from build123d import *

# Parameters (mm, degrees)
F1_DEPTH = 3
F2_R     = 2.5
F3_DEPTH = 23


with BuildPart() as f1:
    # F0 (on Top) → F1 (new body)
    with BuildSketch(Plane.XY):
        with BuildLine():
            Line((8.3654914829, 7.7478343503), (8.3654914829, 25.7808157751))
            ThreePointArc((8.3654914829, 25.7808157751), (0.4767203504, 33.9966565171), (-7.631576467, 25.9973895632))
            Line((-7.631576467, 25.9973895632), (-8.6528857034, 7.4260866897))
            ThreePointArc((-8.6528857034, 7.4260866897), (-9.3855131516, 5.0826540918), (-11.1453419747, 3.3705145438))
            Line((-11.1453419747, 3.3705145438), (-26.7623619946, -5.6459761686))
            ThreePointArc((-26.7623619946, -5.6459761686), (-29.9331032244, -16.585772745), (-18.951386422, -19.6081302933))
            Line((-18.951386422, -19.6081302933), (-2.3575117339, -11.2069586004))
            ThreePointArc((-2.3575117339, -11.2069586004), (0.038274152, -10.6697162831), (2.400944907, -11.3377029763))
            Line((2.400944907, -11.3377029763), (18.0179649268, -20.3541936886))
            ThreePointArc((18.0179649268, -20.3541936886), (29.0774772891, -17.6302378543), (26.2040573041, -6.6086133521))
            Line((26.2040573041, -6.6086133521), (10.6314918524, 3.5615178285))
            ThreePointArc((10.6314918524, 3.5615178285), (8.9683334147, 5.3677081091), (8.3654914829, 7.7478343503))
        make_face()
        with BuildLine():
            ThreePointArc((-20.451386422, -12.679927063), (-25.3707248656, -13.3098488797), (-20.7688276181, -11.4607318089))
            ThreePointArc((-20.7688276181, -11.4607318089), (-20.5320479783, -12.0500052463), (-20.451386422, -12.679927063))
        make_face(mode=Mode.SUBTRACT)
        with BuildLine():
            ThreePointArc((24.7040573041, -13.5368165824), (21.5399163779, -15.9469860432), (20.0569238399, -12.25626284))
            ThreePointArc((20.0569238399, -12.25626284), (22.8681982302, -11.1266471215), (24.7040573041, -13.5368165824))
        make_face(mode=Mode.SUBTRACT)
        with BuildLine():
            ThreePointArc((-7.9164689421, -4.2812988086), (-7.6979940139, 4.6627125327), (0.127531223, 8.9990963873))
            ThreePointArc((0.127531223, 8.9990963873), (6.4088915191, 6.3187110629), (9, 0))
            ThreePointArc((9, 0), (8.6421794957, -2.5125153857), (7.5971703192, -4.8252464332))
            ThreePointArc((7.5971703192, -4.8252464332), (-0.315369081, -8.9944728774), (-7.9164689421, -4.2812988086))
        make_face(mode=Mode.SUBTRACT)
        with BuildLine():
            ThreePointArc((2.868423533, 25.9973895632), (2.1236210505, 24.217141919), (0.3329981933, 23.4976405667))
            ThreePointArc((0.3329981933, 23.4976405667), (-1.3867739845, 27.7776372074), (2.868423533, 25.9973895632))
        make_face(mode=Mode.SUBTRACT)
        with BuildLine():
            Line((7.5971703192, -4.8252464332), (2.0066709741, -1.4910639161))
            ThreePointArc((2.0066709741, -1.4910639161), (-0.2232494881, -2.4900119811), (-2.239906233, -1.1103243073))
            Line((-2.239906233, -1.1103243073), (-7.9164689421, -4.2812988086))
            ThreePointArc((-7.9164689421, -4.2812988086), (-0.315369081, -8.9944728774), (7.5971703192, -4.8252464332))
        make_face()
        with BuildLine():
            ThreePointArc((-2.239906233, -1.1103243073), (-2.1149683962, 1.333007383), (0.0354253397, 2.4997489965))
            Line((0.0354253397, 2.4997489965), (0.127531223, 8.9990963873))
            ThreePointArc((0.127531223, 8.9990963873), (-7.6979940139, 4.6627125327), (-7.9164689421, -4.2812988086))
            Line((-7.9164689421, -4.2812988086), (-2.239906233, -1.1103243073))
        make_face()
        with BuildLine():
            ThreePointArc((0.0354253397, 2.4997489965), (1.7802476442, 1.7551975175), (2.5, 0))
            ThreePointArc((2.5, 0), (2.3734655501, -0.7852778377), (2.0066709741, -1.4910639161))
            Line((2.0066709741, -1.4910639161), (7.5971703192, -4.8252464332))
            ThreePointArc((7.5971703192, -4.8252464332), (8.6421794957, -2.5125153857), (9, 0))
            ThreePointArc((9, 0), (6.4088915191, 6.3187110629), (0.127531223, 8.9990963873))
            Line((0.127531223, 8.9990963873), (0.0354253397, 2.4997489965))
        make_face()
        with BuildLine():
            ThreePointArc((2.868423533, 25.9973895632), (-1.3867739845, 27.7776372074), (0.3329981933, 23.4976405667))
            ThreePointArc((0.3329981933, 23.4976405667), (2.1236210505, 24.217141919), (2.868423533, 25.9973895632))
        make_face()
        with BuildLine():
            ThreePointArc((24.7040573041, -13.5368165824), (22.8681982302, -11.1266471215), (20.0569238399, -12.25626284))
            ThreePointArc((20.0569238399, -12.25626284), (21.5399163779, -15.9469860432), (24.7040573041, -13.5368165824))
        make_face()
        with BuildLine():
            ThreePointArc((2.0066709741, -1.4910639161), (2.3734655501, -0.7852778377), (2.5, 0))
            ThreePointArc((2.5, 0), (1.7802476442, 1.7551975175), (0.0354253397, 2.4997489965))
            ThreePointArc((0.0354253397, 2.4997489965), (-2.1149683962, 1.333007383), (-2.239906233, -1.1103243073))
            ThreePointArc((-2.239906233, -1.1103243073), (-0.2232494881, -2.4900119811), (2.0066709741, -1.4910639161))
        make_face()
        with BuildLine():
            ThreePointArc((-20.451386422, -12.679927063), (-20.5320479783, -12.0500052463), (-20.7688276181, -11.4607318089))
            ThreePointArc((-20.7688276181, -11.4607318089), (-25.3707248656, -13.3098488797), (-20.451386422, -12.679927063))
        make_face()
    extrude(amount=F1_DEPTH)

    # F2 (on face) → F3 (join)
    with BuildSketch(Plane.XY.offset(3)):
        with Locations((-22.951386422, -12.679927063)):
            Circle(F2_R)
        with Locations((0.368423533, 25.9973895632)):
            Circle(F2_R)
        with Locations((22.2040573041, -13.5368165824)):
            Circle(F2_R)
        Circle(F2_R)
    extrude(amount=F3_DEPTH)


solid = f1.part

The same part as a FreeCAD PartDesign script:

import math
import FreeCAD as App
import Part
import Sketcher
from FreeCAD import Vector
Q = App.Units.Quantity

doc = App.newDocument("Part")
body = doc.addObject("PartDesign::Body", "Body")

# Sketch on XY plane
sketch1 = body.newObject("Sketcher::SketchObject", "Sketch")
sketch1.AttachmentSupport = (doc.getObject("XY_Plane"), [""])
sketch1.MapMode = "FlatFace"
sketch1.addGeometry(Part.LineSegment(Vector(8.365491, 7.747834, 0), Vector(8.365491, 25.780816, 0)), False)
sketch1.addGeometry(Part.ArcOfCircle(Part.Circle(Vector(0.368424, 25.99739, 0), Vector(0, 0, 1), 8), math.radians(-1.551285), math.radians(180)), False)
sketch1.addGeometry(Part.LineSegment(Vector(-7.631576, 25.99739, 0), Vector(-8.652886, 7.426087, 0)), False)
sketch1.addGeometry(Part.ArcOfCircle(Part.Circle(Vector(-13.645342, 7.700642, 0), Vector(0, 0, 1), 5), math.radians(-60), math.radians(-3.14775)), False)
sketch1.addGeometry(Part.LineSegment(Vector(-11.145342, 3.370515, 0), Vector(-26.762362, -5.645976, 0)), False)
sketch1.addGeometry(Part.ArcOfCircle(Part.Circle(Vector(-22.951386, -12.679927, 0), Vector(0, 0, 1), 8), math.radians(118.448715), math.radians(300)), False)
sketch1.addGeometry(Part.LineSegment(Vector(-18.951386, -19.60813, 0), Vector(-2.357512, -11.206959, 0)), False)
sketch1.addGeometry(Part.ArcOfCircle(Part.Circle(Vector(-0.099055, -15.66783, 0), Vector(0, 0, 1), 5), math.radians(60), math.radians(116.85225)), False)
sketch1.addGeometry(Part.LineSegment(Vector(2.400945, -11.337703, 0), Vector(18.017965, -20.354194, 0)), False)
sketch1.addGeometry(Part.ArcOfCircle(Part.Circle(Vector(22.204057, -13.536817, 0), Vector(0, 0, 1), 8), math.radians(-121.551285), math.radians(60)), False)
sketch1.addGeometry(Part.LineSegment(Vector(26.204057, -6.608613, 0), Vector(10.631492, 3.561518, 0)), False)
sketch1.addGeometry(Part.ArcOfCircle(Part.Circle(Vector(13.365491, 7.747834, 0), Vector(0, 0, 1), 5), math.radians(180), math.radians(236.85225)), False)
sketch1.addConstraint(Sketcher.Constraint("Coincident", 0, 2, 1, 1))
sketch1.addConstraint(Sketcher.Constraint("Coincident", 1, 2, 2, 1))
sketch1.addConstraint(Sketcher.Constraint("Tangent", 2, 2, 3, 2))
sketch1.addConstraint(Sketcher.Constraint("Tangent", 3, 1, 4, 1))
sketch1.addConstraint(Sketcher.Constraint("Coincident", 4, 2, 5, 1))
sketch1.addConstraint(Sketcher.Constraint("Coincident", 5, 2, 6, 1))
sketch1.addConstraint(Sketcher.Constraint("Tangent", 6, 2, 7, 2))
sketch1.addConstraint(Sketcher.Constraint("Tangent", 7, 1, 8, 1))
sketch1.addConstraint(Sketcher.Constraint("Coincident", 8, 2, 9, 1))
sketch1.addConstraint(Sketcher.Constraint("Coincident", 9, 2, 10, 1))
sketch1.addConstraint(Sketcher.Constraint("Tangent", 10, 2, 11, 2))
sketch1.addConstraint(Sketcher.Constraint("Tangent", 11, 1, 0, 1))
sketch1.addConstraint(Sketcher.Constraint("Vertical", 0))
sketch1.addConstraint(Sketcher.Constraint("Equal", 1, 5))
sketch1.addConstraint(Sketcher.Constraint("Equal", 3, 7))
sketch1.addConstraint(Sketcher.Constraint("Equal", 5, 9))
sketch1.addConstraint(Sketcher.Constraint("Equal", 7, 11))
sketch1.addConstraint(Sketcher.Constraint("Equal", 2, 6))
sketch1.addConstraint(Sketcher.Constraint("Equal", 4, 8))
sketch1.addConstraint(Sketcher.Constraint("Equal", 6, 10))
sketch1.addConstraint(Sketcher.Constraint("Radius", 1, Q("8 mm")))
sketch1.addConstraint(Sketcher.Constraint("Radius", 3, Q("5 mm")))
sketch1.addConstraint(Sketcher.Constraint("Angle", 4, Q("-150 deg")))
sketch1.addConstraint(Sketcher.Constraint("Angle", 8, Q("-30 deg")))
sketch1.addConstraint(Sketcher.Constraint("DistanceX", 5, 3, 5, 2, Q("4 mm")))
sketch1.addConstraint(Sketcher.Constraint("DistanceX", 9, 3, 9, 2, Q("4 mm")))
sketch1.addConstraint(Sketcher.Constraint("DistanceX", 10, 2, 11, 3, Q("2.734 mm")))
sketch1.addConstraint(Sketcher.Constraint("DistanceY", 0, 1, 0, 2, Q("18.032981 mm")))
sketch1.addConstraint(Sketcher.Constraint("DistanceX", 3, 3, 9, 3, Q("35.849399 mm")))
sketch1.addConstraint(Sketcher.Constraint("DistanceY", 5, 2, 7, 3, Q("3.9403 mm")))
sketch1.addConstraint(Sketcher.Constraint("Distance", 4, Q("18.032981 mm")))
sketch1.addConstraint(Sketcher.Constraint("DistanceY", -1, 1, 1, 3, Q("25.99739 mm")))
sketch1.addConstraint(Sketcher.Constraint("DistanceX", 3, 3, -1, 1, Q("13.645342 mm")))
sketch1.addConstraint(Sketcher.Constraint("DistanceY", -1, 1, 3, 3, Q("7.700642 mm")))
sketch1.addConstraint(Sketcher.Constraint("DistanceY", 7, 3, -1, 1, Q("15.66783 mm")))
sketch1.addConstraint(Sketcher.Constraint("DistanceX", -1, 1, 11, 3, Q("13.365491 mm")))
pad1 = body.newObject("PartDesign::Pad", "Pad")
pad1.Profile = sketch1
pad1.Length = 3

# Sketch on XY plane
sketch2 = body.newObject("Sketcher::SketchObject", "Sketch001")
sketch2.AttachmentSupport = (doc.getObject("XY_Plane"), [""])
sketch2.MapMode = "FlatFace"
sketch2.AttachmentOffset = App.Placement(Vector(0, 0, 3), App.Rotation())
sketch2.addGeometry(Part.Circle(Vector(-22.951386, -12.679927, 0), Vector(0, 0, 1), 2.5), False)
sketch2.addGeometry(Part.Circle(Vector(0.368424, 25.99739, 0), Vector(0, 0, 1), 2.5), False)
sketch2.addGeometry(Part.Circle(Vector(22.204057, -13.536817, 0), Vector(0, 0, 1), 2.5), False)
sketch2.addGeometry(Part.Circle(Vector(0, 0, 0), Vector(0, 0, 1), 2.5), False)
sketch2.addConstraint(Sketcher.Constraint("Coincident", 3, 3, -1, 1))
sketch2.addConstraint(Sketcher.Constraint("Equal", 0, 1))
sketch2.addConstraint(Sketcher.Constraint("Equal", 1, 2))
sketch2.addConstraint(Sketcher.Constraint("Equal", 2, 3))
sketch2.addConstraint(Sketcher.Constraint("Diameter", 0, Q("5 mm")))
sketch2.addConstraint(Sketcher.Constraint("DistanceY", -1, 1, 1, 3, Q("25.99739 mm")))
sketch2.addConstraint(Sketcher.Constraint("DistanceX", 0, 3, 1, 3, Q("23.31981 mm")))
sketch2.addConstraint(Sketcher.Constraint("DistanceY", 2, 3, 0, 3, Q("0.85689 mm")))
sketch2.addConstraint(Sketcher.Constraint("DistanceX", 0, 3, -1, 1, Q("22.951386 mm")))
sketch2.addConstraint(Sketcher.Constraint("DistanceY", 0, 3, -1, 1, Q("12.679927 mm")))
sketch2.addConstraint(Sketcher.Constraint("DistanceX", -1, 1, 2, 3, Q("22.204057 mm")))
pad2 = body.newObject("PartDesign::Pad", "Pad001")
pad2.Profile = sketch2
pad2.Length = 23

doc.recompute()
